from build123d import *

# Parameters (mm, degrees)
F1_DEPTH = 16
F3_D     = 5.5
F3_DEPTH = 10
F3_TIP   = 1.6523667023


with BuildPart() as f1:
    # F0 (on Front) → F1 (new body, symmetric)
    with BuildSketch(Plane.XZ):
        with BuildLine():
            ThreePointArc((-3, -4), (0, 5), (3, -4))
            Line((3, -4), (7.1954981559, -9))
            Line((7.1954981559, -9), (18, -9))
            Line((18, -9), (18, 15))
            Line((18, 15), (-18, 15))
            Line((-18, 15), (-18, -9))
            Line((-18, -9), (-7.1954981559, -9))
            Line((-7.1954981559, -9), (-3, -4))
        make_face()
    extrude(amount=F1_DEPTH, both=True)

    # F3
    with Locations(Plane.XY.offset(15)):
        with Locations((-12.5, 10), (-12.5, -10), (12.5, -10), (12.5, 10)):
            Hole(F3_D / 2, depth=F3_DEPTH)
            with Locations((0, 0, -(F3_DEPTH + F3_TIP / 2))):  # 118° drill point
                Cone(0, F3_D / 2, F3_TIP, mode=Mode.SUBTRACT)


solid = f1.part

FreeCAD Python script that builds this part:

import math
import FreeCAD as App
import Part
import Sketcher

V = App.Vector
Q = App.Units.Quantity

doc = App.newDocument("Part")
body = doc.addObject("PartDesign::Body", "Body")

# Sketch on XZ plane
sketch1 = body.newObject("Sketcher::SketchObject", "Sketch")
sketch1.AttachmentSupport = (doc.getObject("XZ_Plane"), [""])
sketch1.MapMode = "FlatFace"
sketch1.addGeometry([
    Part.ArcOfCircle(Part.Circle(V(0, 0, 0), V(0, 0, 1), 5), math.radians(-53), math.radians(233)),  # 0
    Part.LineSegment(V(3, -4, 0), V(7, -9, 0)),  # 1
    Part.LineSegment(V(7, -9, 0), V(18, -9, 0)),  # 2
    Part.LineSegment(V(18, -9, 0), V(18, 15, 0)),  # 3
    Part.LineSegment(V(18, 15, 0), V(-18, 15, 0)),  # 4
    Part.LineSegment(V(-18, 15, 0), V(-18, -9, 0)),  # 5
    Part.LineSegment(V(-18, -9, 0), V(-7, -9, 0)),  # 6
    Part.LineSegment(V(-7, -9, 0), V(-3, -4, 0)),  # 7
], False)
sketch1.addConstraint([
    Sketcher.Constraint("Coincident", 0, 1, 1, 1),
    Sketcher.Constraint("Coincident", 1, 2, 2, 1),
    Sketcher.Constraint("Coincident", 2, 2, 3, 1),
    Sketcher.Constraint("Coincident", 3, 2, 4, 1),
    Sketcher.Constraint("Coincident", 4, 2, 5, 1),
    Sketcher.Constraint("Coincident", 5, 2, 6, 1),
    Sketcher.Constraint("Coincident", 6, 2, 7, 1),
    Sketcher.Constraint("Coincident", 7, 2, 0, 2),
    Sketcher.Constraint("Horizontal", 2),
    Sketcher.Constraint("Vertical", 3),
    Sketcher.Constraint("Horizontal", 4),
    Sketcher.Constraint("Vertical", 5),
    Sketcher.Constraint("Horizontal", 6),
    Sketcher.Constraint("Coincident", 0, 3, -1, 1),
    Sketcher.Constraint("Symmetric", 2, 2, 5, 2, -2),
    Sketcher.Constraint("Horizontal", 0, 1, 7, 2),
    Sketcher.Constraint("Equal", 2, 6),
    Sketcher.Constraint("Radius", 0, 5.0),
    Sketcher.Constraint("DistanceX", 4, 2, 4, 1, 36.0),
    Sketcher.Constraint("DistanceY", 3, 1, 3, 2, 24.0),
    Sketcher.Constraint("Angle", 1, Q("-50 deg")),
    Sketcher.Constraint("DistanceX", -1, 1, 0, 1, 3.0),
    Sketcher.Constraint("DistanceY", 1, 2, -1, 1, 9.0),
])
pad1 = body.newObject("PartDesign::Pad", "Pad")
pad1.Profile = sketch1
pad1.Length = 32
pad1.Midplane = True

# Sketch on XY plane
sketch2 = body.newObject("Sketcher::SketchObject", "Sketch001")
sketch2.AttachmentSupport = (doc.getObject("XY_Plane"), [""])
sketch2.MapMode = "FlatFace"
sketch2.AttachmentOffset = App.Placement(V(0, 0, 15), App.Rotation())
sketch2.addGeometry([
    Part.Circle(V(-12.5, 10, 0), V(0, 0, 1), 2.8),
    Part.Circle(V(-12.5, -10, 0), V(0, 0, 1), 2.8),
    Part.Circle(V(12.5, -10, 0), V(0, 0, 1), 2.8),
    Part.Circle(V(12.5, 10, 0), V(0, 0, 1), 2.8),
], False)
sketch2.addConstraint([
    Sketcher.Constraint("Equal", 0, 1),
    Sketcher.Constraint("Equal", 1, 2),
    Sketcher.Constraint("Equal", 2, 3),
    Sketcher.Constraint("Symmetric", 0, 3, 2, 3, -1, 1),
    Sketcher.Constraint("Symmetric", 1, 3, 3, 3, -1, 1),
    Sketcher.Constraint("Symmetric", 1, 3, 2, 3, -2),
    Sketcher.Constraint("Diameter", 0, 5.5),
    Sketcher.Constraint("DistanceY", -1, 1, 0, 3, 10.0),
    Sketcher.Constraint("DistanceX", 1, 3, 2, 3, 25.0),
])
doc.recompute()
hole = body.newObject("PartDesign::Hole", "Hole")
hole.Profile = sketch2
hole.ThreadType = "None"
hole.Diameter = 5.5
hole.DepthType = "Dimension"
hole.Depth = 10
hole.DrillPoint = "Angled"
hole.DrillPointAngle = 118

doc.recompute()
